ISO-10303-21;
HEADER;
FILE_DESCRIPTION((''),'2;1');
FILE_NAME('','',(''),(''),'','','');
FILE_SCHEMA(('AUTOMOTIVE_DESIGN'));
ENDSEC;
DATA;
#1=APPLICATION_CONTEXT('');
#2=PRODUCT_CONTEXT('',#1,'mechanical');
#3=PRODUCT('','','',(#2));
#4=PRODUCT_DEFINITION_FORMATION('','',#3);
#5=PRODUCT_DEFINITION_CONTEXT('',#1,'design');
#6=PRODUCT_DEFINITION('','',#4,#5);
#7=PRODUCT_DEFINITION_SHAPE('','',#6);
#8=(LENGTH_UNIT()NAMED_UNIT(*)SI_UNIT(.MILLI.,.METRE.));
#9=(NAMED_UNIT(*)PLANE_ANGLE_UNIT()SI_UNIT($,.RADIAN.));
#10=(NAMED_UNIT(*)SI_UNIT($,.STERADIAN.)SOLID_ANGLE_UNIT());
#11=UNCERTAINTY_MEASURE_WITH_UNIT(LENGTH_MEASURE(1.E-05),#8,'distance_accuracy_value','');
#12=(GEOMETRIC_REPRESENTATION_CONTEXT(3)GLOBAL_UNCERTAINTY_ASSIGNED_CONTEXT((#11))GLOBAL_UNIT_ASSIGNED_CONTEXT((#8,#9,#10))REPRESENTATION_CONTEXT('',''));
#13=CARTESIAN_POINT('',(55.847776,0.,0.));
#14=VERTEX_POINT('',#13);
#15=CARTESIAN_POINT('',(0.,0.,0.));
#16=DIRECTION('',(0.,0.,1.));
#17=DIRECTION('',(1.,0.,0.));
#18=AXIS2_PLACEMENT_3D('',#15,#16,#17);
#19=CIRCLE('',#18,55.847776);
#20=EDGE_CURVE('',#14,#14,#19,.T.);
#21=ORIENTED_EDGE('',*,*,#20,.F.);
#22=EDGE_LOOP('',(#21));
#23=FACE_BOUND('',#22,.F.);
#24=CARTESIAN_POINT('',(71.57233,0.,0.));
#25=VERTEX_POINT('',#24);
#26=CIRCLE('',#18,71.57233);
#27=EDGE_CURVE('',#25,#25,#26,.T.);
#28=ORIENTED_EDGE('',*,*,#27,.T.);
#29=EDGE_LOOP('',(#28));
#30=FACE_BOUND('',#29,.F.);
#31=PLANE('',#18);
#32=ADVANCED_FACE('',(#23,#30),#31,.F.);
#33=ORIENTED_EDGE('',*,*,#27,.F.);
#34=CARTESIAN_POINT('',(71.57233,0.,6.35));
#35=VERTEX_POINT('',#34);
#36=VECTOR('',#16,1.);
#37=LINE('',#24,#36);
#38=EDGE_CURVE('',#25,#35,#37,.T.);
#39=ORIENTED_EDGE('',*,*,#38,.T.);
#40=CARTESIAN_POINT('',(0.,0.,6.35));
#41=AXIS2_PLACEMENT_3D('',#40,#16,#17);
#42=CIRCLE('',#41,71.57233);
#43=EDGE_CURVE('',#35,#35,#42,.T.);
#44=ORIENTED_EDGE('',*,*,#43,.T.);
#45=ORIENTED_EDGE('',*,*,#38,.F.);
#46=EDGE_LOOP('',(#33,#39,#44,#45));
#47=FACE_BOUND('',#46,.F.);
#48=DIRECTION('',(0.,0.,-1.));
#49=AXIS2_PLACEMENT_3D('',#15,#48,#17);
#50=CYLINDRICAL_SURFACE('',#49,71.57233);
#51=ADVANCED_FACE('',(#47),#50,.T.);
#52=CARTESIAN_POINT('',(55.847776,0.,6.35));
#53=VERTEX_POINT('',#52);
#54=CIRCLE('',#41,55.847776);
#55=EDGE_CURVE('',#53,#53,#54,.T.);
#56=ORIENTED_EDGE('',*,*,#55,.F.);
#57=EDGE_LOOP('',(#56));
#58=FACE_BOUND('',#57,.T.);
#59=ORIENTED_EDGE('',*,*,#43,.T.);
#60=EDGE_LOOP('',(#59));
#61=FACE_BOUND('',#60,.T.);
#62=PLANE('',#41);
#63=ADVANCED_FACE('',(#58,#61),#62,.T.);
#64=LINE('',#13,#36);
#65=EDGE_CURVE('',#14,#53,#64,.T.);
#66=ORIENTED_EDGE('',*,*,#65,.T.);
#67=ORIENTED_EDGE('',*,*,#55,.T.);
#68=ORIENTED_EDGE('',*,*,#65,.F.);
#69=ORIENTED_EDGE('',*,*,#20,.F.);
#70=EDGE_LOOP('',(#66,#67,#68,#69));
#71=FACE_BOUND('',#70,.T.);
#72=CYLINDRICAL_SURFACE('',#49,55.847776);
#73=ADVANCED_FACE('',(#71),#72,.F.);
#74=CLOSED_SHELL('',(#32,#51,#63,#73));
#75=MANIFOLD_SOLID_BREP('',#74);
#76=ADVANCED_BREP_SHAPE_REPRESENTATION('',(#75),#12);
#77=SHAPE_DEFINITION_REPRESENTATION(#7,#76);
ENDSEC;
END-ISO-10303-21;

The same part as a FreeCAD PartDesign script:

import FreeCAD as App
import Part
import Sketcher
from FreeCAD import Vector
Q = App.Units.Quantity

doc = App.newDocument("Part")
body = doc.addObject("PartDesign::Body", "Body")

# Sketch on XY plane
sketch1 = doc.addObject("Sketcher::SketchObject", "Sketch")
body.addObject(sketch1)
sketch1.AttachmentSupport = (doc.XY_Plane, [""])
sketch1.MapMode = "FlatFace"
sketch1.addGeometry([
    Part.Circle(Vector(0, 0, 0), Vector(0, 0, 1), 72),
    Part.Circle(Vector(0, 0, 0), Vector(0, 0, 1), 56),
], False)
sketch1.addConstraint([
    Sketcher.Constraint("Coincident", 0, 3, -1, 1),
    Sketcher.Constraint("Coincident", 1, 3, -1, 1),
    Sketcher.Constraint("Diameter", 0, 143.14466),
    Sketcher.Constraint("Diameter", 1, 111.695552),
])
pad1 = doc.addObject("PartDesign::Pad", "Pad")
body.addObject(pad1)
pad1.Profile = sketch1
pad1.Length = Q("0.25 in")

doc.recompute()
